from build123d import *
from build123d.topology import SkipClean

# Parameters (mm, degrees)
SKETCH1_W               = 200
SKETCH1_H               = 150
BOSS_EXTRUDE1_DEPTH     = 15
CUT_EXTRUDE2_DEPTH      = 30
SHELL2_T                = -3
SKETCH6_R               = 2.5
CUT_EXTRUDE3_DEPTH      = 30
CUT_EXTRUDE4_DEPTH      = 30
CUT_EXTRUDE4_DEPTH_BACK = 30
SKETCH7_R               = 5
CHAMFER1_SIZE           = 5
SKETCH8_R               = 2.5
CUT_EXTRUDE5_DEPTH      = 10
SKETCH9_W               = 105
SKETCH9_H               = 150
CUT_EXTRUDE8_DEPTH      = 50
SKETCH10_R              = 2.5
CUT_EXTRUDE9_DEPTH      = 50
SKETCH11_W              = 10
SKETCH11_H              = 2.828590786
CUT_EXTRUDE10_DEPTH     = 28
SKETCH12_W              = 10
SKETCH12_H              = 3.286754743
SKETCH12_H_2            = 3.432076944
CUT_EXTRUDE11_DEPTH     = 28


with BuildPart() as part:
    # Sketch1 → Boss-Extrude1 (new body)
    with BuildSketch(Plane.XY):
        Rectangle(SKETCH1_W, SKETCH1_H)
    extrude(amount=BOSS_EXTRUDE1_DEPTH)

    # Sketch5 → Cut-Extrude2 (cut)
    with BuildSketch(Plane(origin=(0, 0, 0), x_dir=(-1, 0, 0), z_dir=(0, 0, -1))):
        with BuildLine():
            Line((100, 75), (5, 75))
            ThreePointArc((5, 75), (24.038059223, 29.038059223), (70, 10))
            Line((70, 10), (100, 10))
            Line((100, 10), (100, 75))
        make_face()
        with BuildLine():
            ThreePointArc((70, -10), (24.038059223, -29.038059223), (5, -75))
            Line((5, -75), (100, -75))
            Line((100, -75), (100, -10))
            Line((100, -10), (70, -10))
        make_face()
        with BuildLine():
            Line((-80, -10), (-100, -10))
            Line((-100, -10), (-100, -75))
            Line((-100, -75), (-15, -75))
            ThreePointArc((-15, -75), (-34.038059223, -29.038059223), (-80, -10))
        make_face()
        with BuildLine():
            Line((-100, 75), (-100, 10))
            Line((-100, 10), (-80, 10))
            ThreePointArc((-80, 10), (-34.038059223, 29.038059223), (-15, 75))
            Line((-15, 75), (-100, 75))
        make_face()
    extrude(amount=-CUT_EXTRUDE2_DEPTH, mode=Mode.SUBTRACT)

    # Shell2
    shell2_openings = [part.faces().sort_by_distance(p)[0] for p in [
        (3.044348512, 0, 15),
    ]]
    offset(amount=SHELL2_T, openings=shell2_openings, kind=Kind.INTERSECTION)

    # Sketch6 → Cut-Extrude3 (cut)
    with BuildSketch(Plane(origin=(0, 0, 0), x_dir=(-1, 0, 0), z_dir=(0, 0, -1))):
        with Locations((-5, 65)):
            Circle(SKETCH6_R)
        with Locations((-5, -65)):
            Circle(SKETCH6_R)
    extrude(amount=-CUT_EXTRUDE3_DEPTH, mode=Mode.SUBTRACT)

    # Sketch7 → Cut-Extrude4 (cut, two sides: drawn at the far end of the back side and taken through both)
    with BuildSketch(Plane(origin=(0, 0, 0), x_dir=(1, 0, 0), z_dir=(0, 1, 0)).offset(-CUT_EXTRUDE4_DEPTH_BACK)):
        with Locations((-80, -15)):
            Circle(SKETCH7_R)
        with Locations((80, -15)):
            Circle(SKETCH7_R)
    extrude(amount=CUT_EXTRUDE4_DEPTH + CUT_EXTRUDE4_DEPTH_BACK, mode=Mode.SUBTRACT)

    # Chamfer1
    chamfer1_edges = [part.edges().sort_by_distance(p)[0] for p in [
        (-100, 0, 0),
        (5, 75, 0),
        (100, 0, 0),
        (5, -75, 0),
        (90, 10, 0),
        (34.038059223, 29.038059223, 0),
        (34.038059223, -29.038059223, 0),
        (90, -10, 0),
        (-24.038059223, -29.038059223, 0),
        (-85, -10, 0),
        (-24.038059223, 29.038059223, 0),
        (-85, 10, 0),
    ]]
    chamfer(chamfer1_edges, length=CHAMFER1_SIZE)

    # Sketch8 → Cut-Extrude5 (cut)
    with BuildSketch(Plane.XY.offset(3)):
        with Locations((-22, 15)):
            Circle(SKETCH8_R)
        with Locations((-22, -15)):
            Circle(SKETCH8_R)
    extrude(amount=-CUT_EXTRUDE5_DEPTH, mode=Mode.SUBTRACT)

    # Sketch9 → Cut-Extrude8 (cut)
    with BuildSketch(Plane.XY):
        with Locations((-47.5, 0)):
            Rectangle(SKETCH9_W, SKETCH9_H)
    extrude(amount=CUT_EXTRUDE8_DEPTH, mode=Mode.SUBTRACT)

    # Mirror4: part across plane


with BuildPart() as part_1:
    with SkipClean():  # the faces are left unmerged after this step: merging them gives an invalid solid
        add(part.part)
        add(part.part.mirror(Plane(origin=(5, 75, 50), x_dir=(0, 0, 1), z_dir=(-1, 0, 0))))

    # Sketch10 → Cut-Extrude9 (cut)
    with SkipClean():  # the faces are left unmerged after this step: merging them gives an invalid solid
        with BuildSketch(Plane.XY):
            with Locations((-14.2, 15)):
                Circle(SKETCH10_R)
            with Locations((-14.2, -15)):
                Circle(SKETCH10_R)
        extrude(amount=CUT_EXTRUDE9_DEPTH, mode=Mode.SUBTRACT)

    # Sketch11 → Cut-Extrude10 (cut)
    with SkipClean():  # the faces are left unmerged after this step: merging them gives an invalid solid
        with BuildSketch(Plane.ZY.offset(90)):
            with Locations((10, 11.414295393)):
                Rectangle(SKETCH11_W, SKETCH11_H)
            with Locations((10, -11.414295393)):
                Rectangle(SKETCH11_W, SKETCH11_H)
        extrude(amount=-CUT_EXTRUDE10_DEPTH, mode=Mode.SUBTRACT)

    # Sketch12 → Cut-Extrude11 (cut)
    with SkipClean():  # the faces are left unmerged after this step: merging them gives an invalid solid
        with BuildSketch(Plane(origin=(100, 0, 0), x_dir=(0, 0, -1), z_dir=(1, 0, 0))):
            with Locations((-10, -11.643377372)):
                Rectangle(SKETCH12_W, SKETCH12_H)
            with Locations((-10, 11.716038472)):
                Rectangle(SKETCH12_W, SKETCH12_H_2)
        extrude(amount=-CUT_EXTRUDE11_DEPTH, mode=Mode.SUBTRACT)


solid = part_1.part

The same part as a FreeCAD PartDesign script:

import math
import FreeCAD as App
import Part
import Sketcher

V = App.Vector


def edges_at(feature, points):
    """Names of the edges that pass closest to the given points."""
    edges = feature.Shape.Edges
    near = lambda p: min(range(len(edges)), key=lambda i: edges[i].distToShape(Part.Vertex(*p))[0])
    return sorted({f"Edge{near(p) + 1}" for p in points})


def faces_at(feature, points):
    """Names of the faces that lie closest to the given points."""
    faces = feature.Shape.Faces
    near = lambda p: min(range(len(faces)), key=lambda i: faces[i].distToShape(Part.Vertex(*p))[0])
    return sorted({f"Face{near(p) + 1}" for p in points})


def add_polygon(sketch, points):
    """Adds a closed chain of lines whose ends are joined by coincident constraints."""
    first, n = sketch.GeometryCount, len(points)
    for a, b in zip(points, points[1:] + points[:1]):
        sketch.addGeometry(Part.LineSegment(App.Vector(*a, 0), App.Vector(*b, 0)), False)
    for i in range(n):
        sketch.addConstraint(Sketcher.Constraint("Coincident", first + i, 2, first + (i + 1) % n, 1))

doc = App.newDocument("Part")
params = doc.addObject("Spreadsheet::Sheet", "Params")
for row, (alias, value) in enumerate([
    ("sketch1_width", "200 mm"),
    ("sketch1_height", "150 mm"),
    ("pad1_length", "15 mm"),
    ("sketch2_radius", "65 mm"),
    ("sketch2_width", "95 mm"),
    ("sketch2_width2", "20 mm"),
    ("pocket1_length", "30 mm"),
    ("thickness_wall", "3 mm"),
    ("sketch3_diameter", "5 mm"),
    ("pocket2_length", "30 mm"),
    ("sketch4_diameter", "10 mm"),
    ("chamfer_size", "5 mm"),
    ("sketch5_diameter", "5 mm"),
    ("pocket4_length", "10 mm"),
    ("sketch6_width", "105 mm"),
    ("sketch6_height", "150 mm"),
    ("pocket5_length", "50 mm"),
    ("sketch7_diameter", "5 mm"),
    ("pocket6_length", "50 mm"),
    ("sketch8_height", "10 mm"),
    ("pocket7_length", "28 mm"),
    ("sketch9_height", "10 mm"),
    ("pocket8_length", "28 mm"),
], start=1):
    params.set(f"A{row}", alias)
    params.set(f"B{row}", "=" + value)
    params.setAlias(f"B{row}", alias)

body = doc.addObject("PartDesign::Body", "Body")

# Sketch on XY plane
sketch1 = doc.addObject("Sketcher::SketchObject", "Sketch")
body.addObject(sketch1)
sketch1.AttachmentSupport = (doc.XY_Plane, [""])
sketch1.MapMode = "FlatFace"
add_polygon(sketch1, [(-100, 75), (-100, -75), (100, -75), (100, 75)])  # lines 0-3
sketch1.addConstraint(Sketcher.Constraint("Vertical", 0))
sketch1.addConstraint(Sketcher.Constraint("Horizontal", 1))
sketch1.addConstraint(Sketcher.Constraint("Vertical", 2))
sketch1.addConstraint(Sketcher.Constraint("Horizontal", 3))
sketch1.addConstraint(Sketcher.Constraint("Symmetric", 0, 2, 2, 2, -1, 1))
sketch1.addConstraint(Sketcher.Constraint("DistanceX", 1, 1, 1, 2, 200.0))
sketch1.addConstraint(Sketcher.Constraint("DistanceY", 0, 2, 0, 1, 150.0))
sketch1.setExpression("Constraints[9]", "Params.sketch1_width")
sketch1.setExpression("Constraints[10]", "Params.sketch1_height")
pad1 = doc.addObject("PartDesign::Pad", "Pad")
body.addObject(pad1)
pad1.Profile = sketch1
pad1.setExpression("Length", "Params.pad1_length")

# Sketch on XY plane
sketch2 = doc.addObject("Sketcher::SketchObject", "Sketch001")
body.addObject(sketch2)
sketch2.AttachmentSupport = (doc.XY_Plane, [""])
sketch2.MapMode = "FlatFace"
sketch2.addGeometry(Part.LineSegment(V(-100, 75, 0), V(-5, 75, 0)), False)
sketch2.addGeometry(Part.ArcOfCircle(Part.Circle(V(-70, 75, 0), V(0, 0, 1), 65), math.radians(-90), math.radians(0)), False)
sketch2.addGeometry(Part.LineSegment(V(-70, 10, 0), V(-100, 10, 0)), False)
sketch2.addGeometry(Part.LineSegment(V(-100, 10, 0), V(-100, 75, 0)), False)
sketch2.addGeometry(Part.ArcOfCircle(Part.Circle(V(-70, -75, 0), V(0, 0, 1), 65), math.radians(0), math.radians(90)), False)
sketch2.addGeometry(Part.LineSegment(V(-5, -75, 0), V(-100, -75, 0)), False)
sketch2.addGeometry(Part.LineSegment(V(-100, -75, 0), V(-100, -10, 0)), False)
sketch2.addGeometry(Part.LineSegment(V(-100, -10, 0), V(-70, -10, 0)), False)
sketch2.addGeometry(Part.LineSegment(V(80, -10, 0), V(100, -10, 0)), False)
sketch2.addGeometry(Part.LineSegment(V(100, -10, 0), V(100, -75, 0)), False)
sketch2.addGeometry(Part.LineSegment(V(100, -75, 0), V(15, -75, 0)), False)
sketch2.addGeometry(Part.ArcOfCircle(Part.Circle(V(80, -75, 0), V(0, 0, 1), 65), math.radians(90), math.radians(180)), False)
sketch2.addGeometry(Part.LineSegment(V(100, 75, 0), V(100, 10, 0)), False)
sketch2.addGeometry(Part.LineSegment(V(100, 10, 0), V(80, 10, 0)), False)
sketch2.addGeometry(Part.ArcOfCircle(Part.Circle(V(80, 75, 0), V(0, 0, 1), 65), math.radians(180), math.radians(270)), False)
sketch2.addGeometry(Part.LineSegment(V(15, 75, 0), V(100, 75, 0)), False)
sketch2.addConstraint(Sketcher.Constraint("Coincident", 0, 2, 1, 2))
sketch2.addConstraint(Sketcher.Constraint("Tangent", 1, 1, 2, 1))
sketch2.addConstraint(Sketcher.Constraint("Coincident", 2, 2, 3, 1))
sketch2.addConstraint(Sketcher.Constraint("Coincident", 3, 2, 0, 1))
sketch2.addConstraint(Sketcher.Constraint("Coincident", 4, 1, 5, 1))
sketch2.addConstraint(Sketcher.Constraint("Coincident", 5, 2, 6, 1))
sketch2.addConstraint(Sketcher.Constraint("Coincident", 6, 2, 7, 1))
sketch2.addConstraint(Sketcher.Constraint("Tangent", 7, 2, 4, 2))
sketch2.addConstraint(Sketcher.Constraint("Coincident", 8, 2, 9, 1))
sketch2.addConstraint(Sketcher.Constraint("Coincident", 9, 2, 10, 1))
sketch2.addConstraint(Sketcher.Constraint("Coincident", 10, 2, 11, 2))
sketch2.addConstraint(Sketcher.Constraint("Tangent", 11, 1, 8, 1))
sketch2.addConstraint(Sketcher.Constraint("Coincident", 12, 2, 13, 1))
sketch2.addConstraint(Sketcher.Constraint("Tangent", 13, 2, 14, 2))
sketch2.addConstraint(Sketcher.Constraint("Coincident", 14, 1, 15, 1))
sketch2.addConstraint(Sketcher.Constraint("Coincident", 15, 2, 12, 1))
sketch2.addConstraint(Sketcher.Constraint("Horizontal", 0))
sketch2.addConstraint(Sketcher.Constraint("Horizontal", 2))
sketch2.addConstraint(Sketcher.Constraint("Vertical", 3))
sketch2.addConstraint(Sketcher.Constraint("Horizontal", 5))
sketch2.addConstraint(Sketcher.Constraint("Vertical", 6))
sketch2.addConstraint(Sketcher.Constraint("Horizontal", 7))
sketch2.addConstraint(Sketcher.Constraint("Horizontal", 8))
sketch2.addConstraint(Sketcher.Constraint("Vertical", 9))
sketch2.addConstraint(Sketcher.Constraint("Horizontal", 10))
sketch2.addConstraint(Sketcher.Constraint("Vertical", 12))
sketch2.addConstraint(Sketcher.Constraint("Horizontal", 13))
sketch2.addConstraint(Sketcher.Constraint("Horizontal", 15))
sketch2.addConstraint(Sketcher.Constraint("Equal", 1, 4))
sketch2.addConstraint(Sketcher.Constraint("Equal", 4, 11))
sketch2.addConstraint(Sketcher.Constraint("Equal", 11, 14))
sketch2.addConstraint(Sketcher.Constraint("Symmetric", 2, 2, 8, 2, -1, 1))
sketch2.addConstraint(Sketcher.Constraint("Symmetric", 6, 2, 12, 2, -1, 1))
sketch2.addConstraint(Sketcher.Constraint("Symmetric", 6, 2, 8, 2, -2))
sketch2.addConstraint(Sketcher.Constraint("Symmetric", 0, 2, 4, 1, -1))
sketch2.addConstraint(Sketcher.Constraint("Symmetric", 10, 2, 14, 1, -1))
sketch2.addConstraint(Sketcher.Constraint("Horizontal", 14, 3, 0, 2))
sketch2.addConstraint(Sketcher.Constraint("Horizontal", 5, 2, 9, 2))
sketch2.addConstraint(Sketcher.Constraint("Radius", 1, 65.0))
sketch2.addConstraint(Sketcher.Constraint("DistanceX", 0, 1, 0, 2, 95.0))
sketch2.addConstraint(Sketcher.Constraint("DistanceX", 8, 1, 8, 2, 20.0))
sketch2.addConstraint(Sketcher.Constraint("DistanceX", 1, 3, -1, 1, 70.0))
sketch2.addConstraint(Sketcher.Constraint("DistanceY", -1, 1, 1, 3, 75.0))
sketch2.setExpression("Constraints[38]", "Params.sketch2_radius")
sketch2.setExpression("Constraints[39]", "Params.sketch2_width")
sketch2.setExpression("Constraints[40]", "Params.sketch2_width2")
pocket1 = doc.addObject("PartDesign::Pocket", "Pocket")
body.addObject(pocket1)
pocket1.Profile = sketch2
pocket1.setExpression("Length", "Params.pocket1_length")
pocket1.Reversed = True
doc.recompute()

thickness = doc.addObject("PartDesign::Thickness", "Thickness")
body.addObject(thickness)
thickness.Base = (pocket1, faces_at(pocket1, [(0, 0, 15)]))
thickness.setExpression("Value", "Params.thickness_wall")
thickness.Reversed = True
thickness.Join = "Intersection"

# Sketch on XY plane
sketch3 = doc.addObject("Sketcher::SketchObject", "Sketch002")
body.addObject(sketch3)
sketch3.AttachmentSupport = (doc.XY_Plane, [""])
sketch3.MapMode = "FlatFace"
sketch3.addGeometry(Part.Circle(V(5, 65, 0), V(0, 0, 1), 2.5), False)
sketch3.addGeometry(Part.Circle(V(5, -65, 0), V(0, 0, 1), 2.5), False)
sketch3.addConstraint(Sketcher.Constraint("Equal", 0, 1))
sketch3.addConstraint(Sketcher.Constraint("Symmetric", 0, 3, 1, 3, -1))
sketch3.addConstraint(Sketcher.Constraint("Diameter", 0, 5.0))
sketch3.addConstraint(Sketcher.Constraint("DistanceX", -1, 1, 0, 3, 5.0))
sketch3.addConstraint(Sketcher.Constraint("DistanceY", -1, 1, 0, 3, 65.0))
sketch3.setExpression("Constraints[2]", "Params.sketch3_diameter")
pocket2 = doc.addObject("PartDesign::Pocket", "Pocket001")
body.addObject(pocket2)
pocket2.Profile = sketch3
pocket2.setExpression("Length", "Params.pocket2_length")
pocket2.Reversed = True

# Sketch on XZ plane
sketch4 = doc.addObject("Sketcher::SketchObject", "Sketch003")
body.addObject(sketch4)
sketch4.AttachmentSupport = (doc.XZ_Plane, [""])
sketch4.MapMode = "FlatFace"
sketch4.addGeometry(Part.Circle(V(-80, 15, 0), V(0, 0, 1), 5), False)
sketch4.addGeometry(Part.Circle(V(80, 15, 0), V(0, 0, 1), 5), False)
sketch4.addConstraint(Sketcher.Constraint("Equal", 0, 1))
sketch4.addConstraint(Sketcher.Constraint("Symmetric", 0, 3, 1, 3, -2))
sketch4.addConstraint(Sketcher.Constraint("Diameter", 0, 10.0))
sketch4.addConstraint(Sketcher.Constraint("DistanceX", 0, 3, -1, 1, 80.0))
sketch4.addConstraint(Sketcher.Constraint("DistanceY", -1, 1, 0, 3, 15.0))
sketch4.setExpression("Constraints[2]", "Params.sketch4_diameter")
pocket3 = doc.addObject("PartDesign::Pocket", "Pocket002")
body.addObject(pocket3)
pocket3.Profile = sketch4
pocket3.Type = "ThroughAll"
pocket3.Midplane = True
doc.recompute()

chamfer = doc.addObject("PartDesign::Chamfer", "Chamfer")
body.addObject(chamfer)
chamfer.Base = (pocket3, edges_at(pocket3, [
    (-100, 0, 0),
    (5, 75, 0),
    (100, 0, 0),
    (5, -75, 0),
    (90, 10, 0),
    (34.038, 29.038, 0),
    (34.038, -29.038, 0),
    (90, -10, 0),
    (-24.038, -29.038, 0),
    (-85, -10, 0),
    (-24.038, 29.038, 0),
    (-85, 10, 0),
]))
chamfer.setExpression("Size", "Params.chamfer_size")

# Sketch on XY plane
sketch5 = doc.addObject("Sketcher::SketchObject", "Sketch004")
body.addObject(sketch5)
sketch5.AttachmentSupport = (doc.XY_Plane, [""])
sketch5.MapMode = "FlatFace"
sketch5.AttachmentOffset = App.Placement(V(0, 0, 3), App.Rotation())
sketch5.addGeometry(Part.Circle(V(-22, 15, 0), V(0, 0, 1), 2.5), False)
sketch5.addGeometry(Part.Circle(V(-22, -15, 0), V(0, 0, 1), 2.5), False)
sketch5.addConstraint(Sketcher.Constraint("Equal", 0, 1))
sketch5.addConstraint(Sketcher.Constraint("Symmetric", 0, 3, 1, 3, -1))
sketch5.addConstraint(Sketcher.Constraint("Diameter", 0, 5.0))
sketch5.addConstraint(Sketcher.Constraint("DistanceX", 0, 3, -1, 1, 22.0))
sketch5.addConstraint(Sketcher.Constraint("DistanceY", -1, 1, 0, 3, 15.0))
sketch5.setExpression("Constraints[2]", "Params.sketch5_diameter")
pocket4 = doc.addObject("PartDesign::Pocket", "Pocket003")
body.addObject(pocket4)
pocket4.Profile = sketch5
pocket4.setExpression("Length", "Params.pocket4_length")

# Sketch on XY plane
sketch6 = doc.addObject("Sketcher::SketchObject", "Sketch005")
body.addObject(sketch6)
sketch6.AttachmentSupport = (doc.XY_Plane, [""])
sketch6.MapMode = "FlatFace"
add_polygon(sketch6, [(-100, 75), (-100, -75), (5, -75), (5, 75)])  # lines 0-3
sketch6.addConstraint(Sketcher.Constraint("Vertical", 0))
sketch6.addConstraint(Sketcher.Constraint("Horizontal", 1))
sketch6.addConstraint(Sketcher.Constraint("Vertical", 2))
sketch6.addConstraint(Sketcher.Constraint("Horizontal", 3))
sketch6.addConstraint(Sketcher.Constraint("DistanceX", 1, 1, 1, 2, 105.0))
sketch6.addConstraint(Sketcher.Constraint("DistanceY", 0, 2, 0, 1, 150.0))
sketch6.addConstraint(Sketcher.Constraint("DistanceX", 0, 2, -1, 1, 100.0))
sketch6.addConstraint(Sketcher.Constraint("DistanceY", 0, 2, -1, 1, 75.0))
sketch6.setExpression("Constraints[8]", "Params.sketch6_width")
sketch6.setExpression("Constraints[9]", "Params.sketch6_height")
pocket5 = doc.addObject("PartDesign::Pocket", "Pocket004")
body.addObject(pocket5)
pocket5.Profile = sketch6
pocket5.setExpression("Length", "Params.pocket5_length")
pocket5.Reversed = True
body2 = doc.addObject("PartDesign::Body", "Body001")
doc.recompute()

body2.BaseFeature = body
doc.recompute()

mirroring = doc.addObject("Part::Mirroring", "Mirroring")
mirroring.Source = body
mirroring.Base = V(5, 75, 50)
mirroring.Normal = V(-1, 0, 0)
body3 = doc.addObject("PartDesign::Body", "Body002")
body3.BaseFeature = mirroring
boolean = doc.addObject("PartDesign::Boolean", "Boolean")
body2.addObject(boolean)
boolean.Type = "Fuse"
boolean.addObjects([body3])
doc.recompute()

# Sketch on XY plane
sketch7 = doc.addObject("Sketcher::SketchObject", "Sketch006")
body2.addObject(sketch7)
sketch7.AttachmentSupport = (doc.getObject("XY_Plane001"), [""])
sketch7.MapMode = "FlatFace"
sketch7.addGeometry(Part.Circle(V(-14.2, 15, 0), V(0, 0, 1), 2.5), False)
sketch7.addGeometry(Part.Circle(V(-14.2, -15, 0), V(0, 0, 1), 2.5), False)
sketch7.addConstraint(Sketcher.Constraint("Equal", 0, 1))
sketch7.addConstraint(Sketcher.Constraint("Symmetric", 0, 3, 1, 3, -1))
sketch7.addConstraint(Sketcher.Constraint("Diameter", 0, 5.0))
sketch7.addConstraint(Sketcher.Constraint("DistanceY", -1, 1, 0, 3, 15.0))
sketch7.addConstraint(Sketcher.Constraint("DistanceX", 0, 3, -1, 1, 14.2))
sketch7.setExpression("Constraints[2]", "Params.sketch7_diameter")
pocket6 = doc.addObject("PartDesign::Pocket", "Pocket005")
body2.addObject(pocket6)
pocket6.Profile = sketch7
pocket6.setExpression("Length", "Params.pocket6_length")
pocket6.Reversed = True

# Sketch on YZ plane
sketch8 = doc.addObject("Sketcher::SketchObject", "Sketch007")
body2.addObject(sketch8)
sketch8.AttachmentSupport = (doc.getObject("YZ_Plane001"), [""])
sketch8.MapMode = "FlatFace"
sketch8.AttachmentOffset = App.Placement(V(0, 0, -90), App.Rotation())
add_polygon(sketch8, [(12.8, 5), (10, 5), (10, 15), (12.8, 15)])  # lines 0-3
add_polygon(sketch8, [(-10, 5), (-12.8, 5), (-12.8, 15), (-10, 15)])  # lines 4-7
sketch8.addConstraint(Sketcher.Constraint("Horizontal", 0))
sketch8.addConstraint(Sketcher.Constraint("Vertical", 1))
sketch8.addConstraint(Sketcher.Constraint("Horizontal", 2))
sketch8.addConstraint(Sketcher.Constraint("Vertical", 3))
sketch8.addConstraint(Sketcher.Constraint("Horizontal", 4))
sketch8.addConstraint(Sketcher.Constraint("Vertical", 5))
sketch8.addConstraint(Sketcher.Constraint("Horizontal", 6))
sketch8.addConstraint(Sketcher.Constraint("Vertical", 7))
sketch8.addConstraint(Sketcher.Constraint("Symmetric", 3, 2, 4, 2, -2))
sketch8.addConstraint(Sketcher.Constraint("Symmetric", 1, 2, 6, 2, -2))
sketch8.addConstraint(Sketcher.Constraint("DistanceY", 1, 1, 1, 2, 10.0))
sketch8.addConstraint(Sketcher.Constraint("DistanceX", -1, 1, 0, 2, 10.0))
sketch8.addConstraint(Sketcher.Constraint("DistanceY", -1, 1, 0, 2, 5.0))
sketch8.addConstraint(Sketcher.Constraint("DistanceX", 0, 2, 0, 1, 2.828591))
sketch8.setExpression("Constraints[18]", "Params.sketch8_height")
pocket7 = doc.addObject("PartDesign::Pocket", "Pocket006")
body2.addObject(pocket7)
pocket7.Profile = sketch8
pocket7.setExpression("Length", "Params.pocket7_length")
pocket7.Reversed = True

# Sketch on YZ plane
sketch9 = doc.addObject("Sketcher::SketchObject", "Sketch008")
body2.addObject(sketch9)
sketch9.AttachmentSupport = (doc.getObject("YZ_Plane001"), [""])
sketch9.MapMode = "FlatFace"
sketch9.AttachmentOffset = App.Placement(V(0, 0, 100), App.Rotation())
add_polygon(sketch9, [(-10, 15), (-13.3, 15), (-13.3, 5), (-10, 5)])  # lines 0-3
add_polygon(sketch9, [(13.4, 15), (10, 15), (10, 5), (13.4, 5)])  # lines 4-7
sketch9.addConstraint(Sketcher.Constraint("Horizontal", 0))
sketch9.addConstraint(Sketcher.Constraint("Vertical", 1))
sketch9.addConstraint(Sketcher.Constraint("Horizontal", 2))
sketch9.addConstraint(Sketcher.Constraint("Vertical", 3))
sketch9.addConstraint(Sketcher.Constraint("Horizontal", 4))
sketch9.addConstraint(Sketcher.Constraint("Vertical", 5))
sketch9.addConstraint(Sketcher.Constraint("Horizontal", 6))
sketch9.addConstraint(Sketcher.Constraint("Vertical", 7))
sketch9.addConstraint(Sketcher.Constraint("Symmetric", 3, 2, 4, 2, -2))
sketch9.addConstraint(Sketcher.Constraint("Horizontal", 2, 2, 5, 2))
sketch9.addConstraint(Sketcher.Constraint("DistanceY", 1, 2, 1, 1, 10.0))
sketch9.addConstraint(Sketcher.Constraint("DistanceY", -1, 1, 0, 2, 15.0))
sketch9.addConstraint(Sketcher.Constraint("DistanceX", 2, 2, -1, 1, 10.0))
sketch9.addConstraint(Sketcher.Constraint("DistanceX", 0, 2, 0, 1, 3.286755))
sketch9.addConstraint(Sketcher.Constraint("DistanceX", 4, 2, 4, 1, 3.432077))
sketch9.setExpression("Constraints[18]", "Params.sketch9_height")
pocket8 = doc.addObject("PartDesign::Pocket", "Pocket007")
body2.addObject(pocket8)
pocket8.Profile = sketch9
pocket8.setExpression("Length", "Params.pocket8_length")
mirroring.Visibility = False

doc.recompute()
